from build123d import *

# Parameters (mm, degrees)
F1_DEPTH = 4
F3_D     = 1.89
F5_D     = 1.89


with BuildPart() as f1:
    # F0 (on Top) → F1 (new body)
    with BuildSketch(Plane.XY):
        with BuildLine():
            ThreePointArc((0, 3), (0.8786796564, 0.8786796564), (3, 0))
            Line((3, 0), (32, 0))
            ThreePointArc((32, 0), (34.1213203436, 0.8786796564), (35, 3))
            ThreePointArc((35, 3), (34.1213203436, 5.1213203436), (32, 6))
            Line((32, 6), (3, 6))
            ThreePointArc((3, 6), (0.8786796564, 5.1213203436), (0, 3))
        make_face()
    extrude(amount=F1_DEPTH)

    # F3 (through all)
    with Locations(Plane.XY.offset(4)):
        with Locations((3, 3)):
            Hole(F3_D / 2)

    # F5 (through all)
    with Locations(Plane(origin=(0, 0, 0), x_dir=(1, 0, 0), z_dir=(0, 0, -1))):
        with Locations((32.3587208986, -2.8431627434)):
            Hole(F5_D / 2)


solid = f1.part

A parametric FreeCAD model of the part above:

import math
import FreeCAD as App
import Part
import Sketcher
from FreeCAD import Vector
Q = App.Units.Quantity

doc = App.newDocument("Part")
body = doc.addObject("PartDesign::Body", "Body")

# Sketch on XY plane
sketch1 = doc.addObject("Sketcher::SketchObject", "Sketch")
body.addObject(sketch1)
sketch1.AttachmentSupport = (doc.XY_Plane, [""])
sketch1.MapMode = "FlatFace"
sketch1.addGeometry([
    Part.ArcOfCircle(Part.Circle(Vector(3, 3, 0), Vector(0, 0, 1), 3), math.radians(180), math.radians(270)),  # 0
    Part.LineSegment(Vector(3, 0, 0), Vector(32, 0, 0)),  # 1
    Part.ArcOfCircle(Part.Circle(Vector(32, 3, 0), Vector(0, 0, 1), 3), math.radians(-90), math.radians(0)),  # 2
    Part.ArcOfCircle(Part.Circle(Vector(32, 3, 0), Vector(0, 0, 1), 3), math.radians(0), math.radians(90)),  # 3
    Part.LineSegment(Vector(32, 6, 0), Vector(3, 6, 0)),  # 4
    Part.ArcOfCircle(Part.Circle(Vector(3, 3, 0), Vector(0, 0, 1), 3), math.radians(90), math.radians(180)),  # 5
], False)
sketch1.addConstraint([
    Sketcher.Constraint("Tangent", 0, 2, 1, 1),
    Sketcher.Constraint("Tangent", 1, 2, 2, 1),
    Sketcher.Constraint("Tangent", 2, 2, 3, 1),
    Sketcher.Constraint("Tangent", 3, 2, 4, 1),
    Sketcher.Constraint("Tangent", 4, 2, 5, 1),
    Sketcher.Constraint("Tangent", 5, 2, 0, 1),
    Sketcher.Constraint("Horizontal", 1),
    Sketcher.Constraint("Horizontal", 4),
    Sketcher.Constraint("Equal", 0, 2),
    Sketcher.Constraint("Equal", 2, 3),
    Sketcher.Constraint("PointOnObject", 0, 2, -1),
    Sketcher.Constraint("PointOnObject", 5, 2, -2),
    Sketcher.Constraint("Horizontal", 5, 3, 2, 2),
    Sketcher.Constraint("Horizontal", 2, 2, 5, 2),
    Sketcher.Constraint("Radius", 0, Q("3 mm")),
    Sketcher.Constraint("DistanceX", 1, 1, 1, 2, Q("29 mm")),
])
pad1 = doc.addObject("PartDesign::Pad", "Pad")
body.addObject(pad1)
pad1.Profile = sketch1
pad1.Length = 4

# Sketch on XY plane
sketch2 = doc.addObject("Sketcher::SketchObject", "Sketch001")
body.addObject(sketch2)
sketch2.AttachmentSupport = (doc.XY_Plane, [""])
sketch2.MapMode = "FlatFace"
sketch2.AttachmentOffset = App.Placement(Vector(0, 0, 4), App.Rotation())
sketch2.addGeometry(Part.Circle(Vector(3, 3, 0), Vector(0, 0, 1), 0.945), False)
sketch2.addConstraint([
    Sketcher.Constraint("Diameter", 0, Q("1.89 mm")),
    Sketcher.Constraint("DistanceX", -1, 1, 0, 3, Q("3 mm")),
    Sketcher.Constraint("DistanceY", -1, 1, 0, 3, Q("3 mm")),
])
doc.recompute()
hole = doc.addObject("PartDesign::Hole", "Hole")
body.addObject(hole)
hole.Profile = sketch2
hole.ThreadType = "None"
hole.Diameter = 1.89
hole.DepthType = "ThroughAll"

# Sketch on XY plane
sketch3 = doc.addObject("Sketcher::SketchObject", "Sketch002")
body.addObject(sketch3)
sketch3.AttachmentSupport = (doc.XY_Plane, [""])
sketch3.MapMode = "FlatFace"
sketch3.addGeometry(Part.Circle(Vector(32.358721, 2.843163, 0), Vector(0, 0, 1), 0.945), False)
sketch3.addConstraint([
    Sketcher.Constraint("Diameter", 0, Q("1.89 mm")),
    Sketcher.Constraint("DistanceX", -1, 1, 0, 3, Q("32.358721 mm")),
    Sketcher.Constraint("DistanceY", -1, 1, 0, 3, Q("2.843163 mm")),
])
doc.recompute()
hole2 = doc.addObject("PartDesign::Hole", "Hole001")
body.addObject(hole2)
hole2.Profile = sketch3
hole2.ThreadType = "None"
hole2.Diameter = 1.89
hole2.DepthType = "ThroughAll"
hole2.Reversed = True

doc.recompute()
